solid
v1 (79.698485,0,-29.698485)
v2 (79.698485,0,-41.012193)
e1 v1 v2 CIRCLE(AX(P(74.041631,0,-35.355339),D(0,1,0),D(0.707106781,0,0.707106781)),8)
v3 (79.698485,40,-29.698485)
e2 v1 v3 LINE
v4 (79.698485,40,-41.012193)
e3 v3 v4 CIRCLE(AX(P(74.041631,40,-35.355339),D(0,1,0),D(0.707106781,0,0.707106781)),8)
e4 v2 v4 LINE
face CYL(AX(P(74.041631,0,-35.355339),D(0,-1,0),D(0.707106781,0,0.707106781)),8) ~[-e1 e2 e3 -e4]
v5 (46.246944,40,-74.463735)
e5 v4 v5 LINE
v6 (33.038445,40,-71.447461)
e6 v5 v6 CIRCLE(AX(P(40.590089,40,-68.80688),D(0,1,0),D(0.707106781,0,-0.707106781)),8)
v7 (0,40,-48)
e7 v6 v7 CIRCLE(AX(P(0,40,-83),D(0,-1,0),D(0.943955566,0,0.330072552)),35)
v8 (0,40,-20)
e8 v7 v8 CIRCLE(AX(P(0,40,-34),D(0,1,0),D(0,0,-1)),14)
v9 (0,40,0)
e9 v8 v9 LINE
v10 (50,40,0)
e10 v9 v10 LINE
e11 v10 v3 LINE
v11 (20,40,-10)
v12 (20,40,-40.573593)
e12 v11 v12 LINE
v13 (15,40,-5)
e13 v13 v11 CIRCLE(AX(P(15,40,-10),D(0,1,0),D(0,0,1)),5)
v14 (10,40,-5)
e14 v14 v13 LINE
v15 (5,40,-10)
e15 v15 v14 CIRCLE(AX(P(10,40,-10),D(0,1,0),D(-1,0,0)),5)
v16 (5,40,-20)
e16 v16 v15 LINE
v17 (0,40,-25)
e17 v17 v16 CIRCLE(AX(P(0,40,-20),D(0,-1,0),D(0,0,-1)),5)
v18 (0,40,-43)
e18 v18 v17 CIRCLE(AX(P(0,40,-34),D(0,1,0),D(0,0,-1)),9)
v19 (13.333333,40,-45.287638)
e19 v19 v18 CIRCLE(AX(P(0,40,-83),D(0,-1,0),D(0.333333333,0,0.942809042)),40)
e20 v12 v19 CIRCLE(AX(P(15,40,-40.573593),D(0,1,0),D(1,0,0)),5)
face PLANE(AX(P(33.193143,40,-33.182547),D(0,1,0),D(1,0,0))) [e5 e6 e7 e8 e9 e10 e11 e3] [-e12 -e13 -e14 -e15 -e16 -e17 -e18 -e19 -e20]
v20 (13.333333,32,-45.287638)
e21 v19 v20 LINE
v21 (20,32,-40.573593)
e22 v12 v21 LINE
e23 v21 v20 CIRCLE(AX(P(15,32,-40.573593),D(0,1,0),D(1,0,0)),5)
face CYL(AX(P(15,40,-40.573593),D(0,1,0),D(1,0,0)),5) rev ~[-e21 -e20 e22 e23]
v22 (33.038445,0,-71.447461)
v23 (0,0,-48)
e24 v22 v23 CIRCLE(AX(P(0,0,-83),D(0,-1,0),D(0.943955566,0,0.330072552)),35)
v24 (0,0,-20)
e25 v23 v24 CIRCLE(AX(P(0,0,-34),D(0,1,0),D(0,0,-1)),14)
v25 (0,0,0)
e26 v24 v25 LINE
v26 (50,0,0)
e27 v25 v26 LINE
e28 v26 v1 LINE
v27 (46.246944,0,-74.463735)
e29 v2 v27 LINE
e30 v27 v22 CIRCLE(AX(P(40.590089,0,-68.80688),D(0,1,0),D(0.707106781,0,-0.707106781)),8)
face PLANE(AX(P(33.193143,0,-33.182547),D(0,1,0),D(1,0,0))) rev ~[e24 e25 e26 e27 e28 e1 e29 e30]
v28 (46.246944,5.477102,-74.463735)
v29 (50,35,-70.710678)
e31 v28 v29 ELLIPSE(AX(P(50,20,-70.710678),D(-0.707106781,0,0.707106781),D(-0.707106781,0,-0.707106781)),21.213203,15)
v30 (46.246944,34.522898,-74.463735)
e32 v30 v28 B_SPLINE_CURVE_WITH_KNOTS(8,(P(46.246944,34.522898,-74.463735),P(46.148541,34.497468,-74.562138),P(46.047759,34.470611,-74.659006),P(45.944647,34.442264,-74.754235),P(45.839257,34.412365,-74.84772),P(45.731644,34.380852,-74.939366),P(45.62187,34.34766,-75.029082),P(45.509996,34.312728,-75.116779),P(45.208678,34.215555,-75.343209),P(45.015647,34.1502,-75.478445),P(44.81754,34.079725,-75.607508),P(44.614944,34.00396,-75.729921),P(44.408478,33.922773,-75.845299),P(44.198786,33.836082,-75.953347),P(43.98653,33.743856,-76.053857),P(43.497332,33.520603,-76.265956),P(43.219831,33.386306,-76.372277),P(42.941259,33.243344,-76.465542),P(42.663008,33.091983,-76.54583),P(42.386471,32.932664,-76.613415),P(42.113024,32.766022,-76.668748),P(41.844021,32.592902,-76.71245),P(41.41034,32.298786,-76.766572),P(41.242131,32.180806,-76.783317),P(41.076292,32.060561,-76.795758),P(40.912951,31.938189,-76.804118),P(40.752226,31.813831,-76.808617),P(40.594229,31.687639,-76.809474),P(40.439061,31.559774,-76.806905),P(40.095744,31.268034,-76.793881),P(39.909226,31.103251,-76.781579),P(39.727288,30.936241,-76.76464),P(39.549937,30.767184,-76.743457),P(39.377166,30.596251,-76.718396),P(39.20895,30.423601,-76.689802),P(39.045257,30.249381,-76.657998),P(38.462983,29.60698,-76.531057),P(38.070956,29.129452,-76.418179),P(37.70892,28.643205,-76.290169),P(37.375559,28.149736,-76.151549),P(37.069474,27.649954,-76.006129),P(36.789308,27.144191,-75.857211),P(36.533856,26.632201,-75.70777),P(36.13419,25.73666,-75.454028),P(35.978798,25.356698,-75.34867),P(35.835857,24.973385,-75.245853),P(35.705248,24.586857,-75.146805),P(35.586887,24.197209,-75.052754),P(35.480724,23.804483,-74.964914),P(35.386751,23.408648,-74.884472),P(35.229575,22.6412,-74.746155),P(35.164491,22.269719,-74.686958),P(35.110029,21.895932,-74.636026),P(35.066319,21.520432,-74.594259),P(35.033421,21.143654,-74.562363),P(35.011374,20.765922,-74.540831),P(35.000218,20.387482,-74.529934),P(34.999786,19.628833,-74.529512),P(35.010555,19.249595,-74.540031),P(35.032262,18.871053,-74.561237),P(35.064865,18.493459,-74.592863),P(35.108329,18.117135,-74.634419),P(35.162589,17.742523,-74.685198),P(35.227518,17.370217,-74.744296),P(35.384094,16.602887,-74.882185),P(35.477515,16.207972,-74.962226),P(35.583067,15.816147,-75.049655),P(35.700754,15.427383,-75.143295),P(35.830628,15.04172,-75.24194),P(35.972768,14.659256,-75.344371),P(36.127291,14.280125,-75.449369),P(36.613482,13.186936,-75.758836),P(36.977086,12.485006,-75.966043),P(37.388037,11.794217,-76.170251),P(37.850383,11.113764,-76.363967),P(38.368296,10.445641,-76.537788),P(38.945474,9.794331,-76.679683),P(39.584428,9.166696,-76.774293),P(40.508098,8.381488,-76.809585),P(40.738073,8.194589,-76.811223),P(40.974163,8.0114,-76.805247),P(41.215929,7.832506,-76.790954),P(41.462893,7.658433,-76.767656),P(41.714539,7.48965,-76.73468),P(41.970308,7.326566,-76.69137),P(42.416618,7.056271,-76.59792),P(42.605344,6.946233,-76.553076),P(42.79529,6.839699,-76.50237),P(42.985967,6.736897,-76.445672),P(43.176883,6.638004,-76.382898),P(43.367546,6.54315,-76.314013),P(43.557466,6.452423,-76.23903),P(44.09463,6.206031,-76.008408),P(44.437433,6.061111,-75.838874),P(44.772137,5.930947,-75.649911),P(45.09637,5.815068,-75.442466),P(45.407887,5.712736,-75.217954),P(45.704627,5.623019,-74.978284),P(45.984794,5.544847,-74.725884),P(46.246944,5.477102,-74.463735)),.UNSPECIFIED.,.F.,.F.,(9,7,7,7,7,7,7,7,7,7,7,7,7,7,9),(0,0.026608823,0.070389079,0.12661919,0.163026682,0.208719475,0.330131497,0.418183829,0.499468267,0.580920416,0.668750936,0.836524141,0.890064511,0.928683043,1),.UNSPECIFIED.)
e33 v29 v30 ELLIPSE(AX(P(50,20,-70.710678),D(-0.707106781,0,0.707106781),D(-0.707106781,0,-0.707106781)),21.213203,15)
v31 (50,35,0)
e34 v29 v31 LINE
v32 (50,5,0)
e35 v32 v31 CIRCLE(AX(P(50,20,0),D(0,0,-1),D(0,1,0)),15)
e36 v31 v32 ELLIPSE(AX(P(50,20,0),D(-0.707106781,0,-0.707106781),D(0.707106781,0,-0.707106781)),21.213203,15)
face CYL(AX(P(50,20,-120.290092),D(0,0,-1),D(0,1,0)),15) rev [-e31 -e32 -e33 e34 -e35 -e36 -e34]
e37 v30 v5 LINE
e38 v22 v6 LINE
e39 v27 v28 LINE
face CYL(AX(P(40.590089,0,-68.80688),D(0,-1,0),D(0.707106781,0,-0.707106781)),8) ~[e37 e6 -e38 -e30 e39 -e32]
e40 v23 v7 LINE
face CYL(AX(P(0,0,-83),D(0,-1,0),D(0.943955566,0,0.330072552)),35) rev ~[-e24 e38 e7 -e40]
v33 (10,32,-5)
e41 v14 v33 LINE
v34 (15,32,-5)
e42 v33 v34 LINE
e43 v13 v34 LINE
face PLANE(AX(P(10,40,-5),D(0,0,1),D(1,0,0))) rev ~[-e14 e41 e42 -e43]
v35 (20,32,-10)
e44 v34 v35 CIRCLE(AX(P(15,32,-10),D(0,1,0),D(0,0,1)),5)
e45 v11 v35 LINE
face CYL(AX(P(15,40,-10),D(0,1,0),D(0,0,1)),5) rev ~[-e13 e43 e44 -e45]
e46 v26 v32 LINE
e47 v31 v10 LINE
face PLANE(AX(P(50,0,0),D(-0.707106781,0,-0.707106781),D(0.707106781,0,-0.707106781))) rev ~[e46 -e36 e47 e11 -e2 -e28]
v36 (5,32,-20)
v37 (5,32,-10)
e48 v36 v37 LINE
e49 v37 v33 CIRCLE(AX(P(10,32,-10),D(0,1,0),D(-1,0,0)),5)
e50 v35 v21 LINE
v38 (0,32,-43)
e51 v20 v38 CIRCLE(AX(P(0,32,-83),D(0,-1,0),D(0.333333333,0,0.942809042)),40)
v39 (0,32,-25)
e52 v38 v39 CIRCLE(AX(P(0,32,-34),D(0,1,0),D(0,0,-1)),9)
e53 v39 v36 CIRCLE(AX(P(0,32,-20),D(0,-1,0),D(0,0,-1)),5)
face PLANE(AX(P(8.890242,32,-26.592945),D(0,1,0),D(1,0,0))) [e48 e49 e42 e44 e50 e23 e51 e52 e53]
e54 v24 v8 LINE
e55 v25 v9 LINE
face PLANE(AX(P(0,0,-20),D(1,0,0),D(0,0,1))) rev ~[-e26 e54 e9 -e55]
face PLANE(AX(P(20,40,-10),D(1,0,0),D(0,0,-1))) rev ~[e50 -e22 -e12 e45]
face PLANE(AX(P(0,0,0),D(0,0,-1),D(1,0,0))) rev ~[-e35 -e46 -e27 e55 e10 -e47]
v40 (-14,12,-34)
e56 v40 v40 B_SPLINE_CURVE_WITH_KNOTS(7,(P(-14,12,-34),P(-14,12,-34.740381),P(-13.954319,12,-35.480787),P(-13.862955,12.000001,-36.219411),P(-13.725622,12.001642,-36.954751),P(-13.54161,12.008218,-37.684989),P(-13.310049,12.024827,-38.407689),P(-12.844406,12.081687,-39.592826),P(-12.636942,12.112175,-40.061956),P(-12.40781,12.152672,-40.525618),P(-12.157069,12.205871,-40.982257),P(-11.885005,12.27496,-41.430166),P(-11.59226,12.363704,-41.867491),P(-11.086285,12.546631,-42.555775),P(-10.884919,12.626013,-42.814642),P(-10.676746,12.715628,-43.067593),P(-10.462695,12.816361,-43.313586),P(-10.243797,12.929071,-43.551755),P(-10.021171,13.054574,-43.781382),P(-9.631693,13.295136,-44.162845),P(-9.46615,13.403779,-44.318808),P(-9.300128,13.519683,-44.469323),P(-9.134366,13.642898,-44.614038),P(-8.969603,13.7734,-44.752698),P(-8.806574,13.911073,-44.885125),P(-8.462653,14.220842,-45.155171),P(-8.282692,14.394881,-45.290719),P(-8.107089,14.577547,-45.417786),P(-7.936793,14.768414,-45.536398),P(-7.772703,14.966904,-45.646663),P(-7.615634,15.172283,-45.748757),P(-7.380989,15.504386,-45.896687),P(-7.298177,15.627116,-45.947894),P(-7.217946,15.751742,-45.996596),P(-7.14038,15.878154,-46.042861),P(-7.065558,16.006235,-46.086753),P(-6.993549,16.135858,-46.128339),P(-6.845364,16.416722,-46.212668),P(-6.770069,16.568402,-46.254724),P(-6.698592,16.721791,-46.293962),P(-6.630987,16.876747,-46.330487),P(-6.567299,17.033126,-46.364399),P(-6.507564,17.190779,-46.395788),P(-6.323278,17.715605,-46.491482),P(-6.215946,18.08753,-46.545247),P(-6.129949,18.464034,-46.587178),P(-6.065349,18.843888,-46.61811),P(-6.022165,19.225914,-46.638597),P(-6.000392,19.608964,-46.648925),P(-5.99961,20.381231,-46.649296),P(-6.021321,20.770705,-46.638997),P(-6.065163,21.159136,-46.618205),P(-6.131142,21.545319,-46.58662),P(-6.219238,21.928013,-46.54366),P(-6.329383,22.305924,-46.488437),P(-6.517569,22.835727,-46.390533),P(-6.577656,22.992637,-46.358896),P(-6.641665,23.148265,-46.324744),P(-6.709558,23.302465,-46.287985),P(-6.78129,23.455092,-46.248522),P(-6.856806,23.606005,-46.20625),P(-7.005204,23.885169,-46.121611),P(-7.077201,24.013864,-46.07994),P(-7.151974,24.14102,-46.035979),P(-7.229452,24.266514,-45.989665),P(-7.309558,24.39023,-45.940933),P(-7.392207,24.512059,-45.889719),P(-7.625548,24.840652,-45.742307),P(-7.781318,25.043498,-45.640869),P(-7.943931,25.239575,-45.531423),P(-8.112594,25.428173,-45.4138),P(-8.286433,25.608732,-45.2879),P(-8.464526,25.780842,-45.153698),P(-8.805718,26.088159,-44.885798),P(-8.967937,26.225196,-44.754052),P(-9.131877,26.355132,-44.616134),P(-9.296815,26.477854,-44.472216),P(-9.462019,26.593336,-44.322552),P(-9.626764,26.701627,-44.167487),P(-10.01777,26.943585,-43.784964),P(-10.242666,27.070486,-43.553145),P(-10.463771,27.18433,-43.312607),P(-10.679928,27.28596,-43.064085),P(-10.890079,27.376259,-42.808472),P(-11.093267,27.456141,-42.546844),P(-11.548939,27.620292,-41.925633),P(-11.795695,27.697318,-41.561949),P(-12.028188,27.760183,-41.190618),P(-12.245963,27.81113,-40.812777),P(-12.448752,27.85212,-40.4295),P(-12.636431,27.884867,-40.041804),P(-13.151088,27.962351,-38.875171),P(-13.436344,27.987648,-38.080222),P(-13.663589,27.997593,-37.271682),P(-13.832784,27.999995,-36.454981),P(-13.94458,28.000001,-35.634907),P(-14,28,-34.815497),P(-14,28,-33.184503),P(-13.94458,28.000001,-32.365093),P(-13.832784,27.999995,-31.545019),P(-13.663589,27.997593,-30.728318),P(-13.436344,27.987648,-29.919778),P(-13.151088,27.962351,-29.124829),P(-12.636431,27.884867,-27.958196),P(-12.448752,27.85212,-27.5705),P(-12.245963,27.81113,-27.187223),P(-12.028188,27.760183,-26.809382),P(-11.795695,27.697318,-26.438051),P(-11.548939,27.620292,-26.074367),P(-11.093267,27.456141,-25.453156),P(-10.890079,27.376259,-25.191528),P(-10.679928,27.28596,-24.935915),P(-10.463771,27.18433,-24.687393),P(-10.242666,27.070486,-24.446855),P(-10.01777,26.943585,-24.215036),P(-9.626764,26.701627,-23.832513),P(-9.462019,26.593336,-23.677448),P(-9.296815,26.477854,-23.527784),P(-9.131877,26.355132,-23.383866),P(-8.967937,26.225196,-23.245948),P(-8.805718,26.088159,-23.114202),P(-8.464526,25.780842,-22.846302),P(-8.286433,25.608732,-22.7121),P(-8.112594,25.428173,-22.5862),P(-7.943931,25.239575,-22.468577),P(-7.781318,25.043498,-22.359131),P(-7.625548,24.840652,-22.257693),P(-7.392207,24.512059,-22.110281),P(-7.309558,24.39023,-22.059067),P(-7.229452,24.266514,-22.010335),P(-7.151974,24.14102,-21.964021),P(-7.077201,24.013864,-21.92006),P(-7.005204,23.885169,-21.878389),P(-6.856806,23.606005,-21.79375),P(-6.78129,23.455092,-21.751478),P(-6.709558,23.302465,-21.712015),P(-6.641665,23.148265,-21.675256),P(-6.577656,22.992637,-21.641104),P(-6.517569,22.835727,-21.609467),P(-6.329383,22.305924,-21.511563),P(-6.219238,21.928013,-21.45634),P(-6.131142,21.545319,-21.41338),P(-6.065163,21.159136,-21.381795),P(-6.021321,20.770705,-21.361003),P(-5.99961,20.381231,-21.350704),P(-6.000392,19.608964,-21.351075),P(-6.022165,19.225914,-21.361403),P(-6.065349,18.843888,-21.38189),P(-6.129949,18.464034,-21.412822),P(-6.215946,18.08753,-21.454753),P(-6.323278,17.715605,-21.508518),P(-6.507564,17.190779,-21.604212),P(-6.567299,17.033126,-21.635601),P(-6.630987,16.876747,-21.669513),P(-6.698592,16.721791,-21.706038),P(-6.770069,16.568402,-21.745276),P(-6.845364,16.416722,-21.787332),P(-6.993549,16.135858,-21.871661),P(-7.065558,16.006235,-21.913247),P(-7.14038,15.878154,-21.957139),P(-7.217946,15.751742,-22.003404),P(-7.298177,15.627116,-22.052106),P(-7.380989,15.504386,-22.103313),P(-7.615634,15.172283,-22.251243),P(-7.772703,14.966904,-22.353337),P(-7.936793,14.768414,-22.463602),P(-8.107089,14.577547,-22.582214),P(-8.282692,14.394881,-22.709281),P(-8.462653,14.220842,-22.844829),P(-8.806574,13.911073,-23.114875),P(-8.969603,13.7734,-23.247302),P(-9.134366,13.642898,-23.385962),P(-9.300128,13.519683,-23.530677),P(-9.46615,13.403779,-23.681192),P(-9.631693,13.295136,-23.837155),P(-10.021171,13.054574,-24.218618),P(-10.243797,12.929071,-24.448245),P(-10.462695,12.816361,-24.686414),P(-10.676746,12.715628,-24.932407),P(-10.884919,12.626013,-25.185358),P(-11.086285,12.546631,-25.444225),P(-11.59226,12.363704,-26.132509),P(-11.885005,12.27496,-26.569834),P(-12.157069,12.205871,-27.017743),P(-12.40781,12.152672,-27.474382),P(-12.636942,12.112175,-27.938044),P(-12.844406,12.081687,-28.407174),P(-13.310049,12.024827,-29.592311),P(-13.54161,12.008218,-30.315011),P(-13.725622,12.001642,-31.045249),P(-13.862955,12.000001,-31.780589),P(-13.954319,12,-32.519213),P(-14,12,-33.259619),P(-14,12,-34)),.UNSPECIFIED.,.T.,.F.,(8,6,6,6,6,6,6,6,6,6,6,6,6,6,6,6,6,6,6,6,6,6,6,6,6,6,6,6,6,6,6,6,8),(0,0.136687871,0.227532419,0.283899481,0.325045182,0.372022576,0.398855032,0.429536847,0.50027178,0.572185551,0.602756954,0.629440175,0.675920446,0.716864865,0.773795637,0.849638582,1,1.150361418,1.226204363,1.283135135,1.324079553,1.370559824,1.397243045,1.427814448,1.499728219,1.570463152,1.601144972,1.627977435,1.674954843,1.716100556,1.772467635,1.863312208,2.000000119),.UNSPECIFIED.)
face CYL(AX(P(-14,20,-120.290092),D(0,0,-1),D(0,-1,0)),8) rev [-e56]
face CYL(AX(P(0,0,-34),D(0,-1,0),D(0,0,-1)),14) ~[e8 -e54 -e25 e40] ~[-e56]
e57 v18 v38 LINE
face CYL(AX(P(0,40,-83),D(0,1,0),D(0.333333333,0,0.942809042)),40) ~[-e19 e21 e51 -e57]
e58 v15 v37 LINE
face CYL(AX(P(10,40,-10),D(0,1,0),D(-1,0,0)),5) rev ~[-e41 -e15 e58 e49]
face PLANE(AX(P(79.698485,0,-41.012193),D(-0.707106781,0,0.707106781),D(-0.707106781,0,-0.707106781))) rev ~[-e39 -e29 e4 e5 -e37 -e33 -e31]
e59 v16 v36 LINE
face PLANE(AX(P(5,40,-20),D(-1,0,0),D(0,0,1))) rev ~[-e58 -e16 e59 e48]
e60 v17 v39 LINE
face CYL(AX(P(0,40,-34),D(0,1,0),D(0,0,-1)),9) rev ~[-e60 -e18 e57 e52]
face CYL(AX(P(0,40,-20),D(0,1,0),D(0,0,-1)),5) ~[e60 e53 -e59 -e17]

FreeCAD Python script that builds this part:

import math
import FreeCAD as App
import Part
import Sketcher
from FreeCAD import Vector

doc = App.newDocument("Part")
body = doc.addObject("PartDesign::Body", "Body")

# Sketch on XZ plane
sketch1 = doc.addObject("Sketcher::SketchObject", "Sketch")
body.addObject(sketch1)
sketch1.AttachmentSupport = (doc.XZ_Plane, [""])
sketch1.MapMode = "FlatFace"
sketch1.addGeometry([
    Part.LineSegment(Vector(0, 0, 0), Vector(50, 0, 0)),  # 0
    Part.LineSegment(Vector(50, 0, 0), Vector(80, -30, 0)),  # 1
    Part.ArcOfCircle(Part.Circle(Vector(74, -35, 0), Vector(0, 0, 1), 8), math.radians(-45), math.radians(45)),  # 2
    Part.LineSegment(Vector(80, -41, 0), Vector(46, -74, 0)),  # 3
    Part.ArcOfCircle(Part.Circle(Vector(41, -69, 0), Vector(0, 0, 1), 8), math.radians(-161), math.radians(-45)),  # 4
    Part.ArcOfCircle(Part.Circle(Vector(0, -83, 0), Vector(0, 0, 1), 35), math.radians(19), math.radians(90)),  # 5
    Part.ArcOfCircle(Part.Circle(Vector(0, -34, 0), Vector(0, 0, 1), 14), math.radians(90), math.radians(270)),  # 6
    Part.LineSegment(Vector(0, -20, 0), Vector(0, 0, 0)),  # 7
], False)
sketch1.addConstraint([
    Sketcher.Constraint("Coincident", 0, 2, 1, 1),
    Sketcher.Constraint("Tangent", 1, 2, 2, 2),
    Sketcher.Constraint("Tangent", 2, 1, 3, 1),
    Sketcher.Constraint("Tangent", 3, 2, 4, 2),
    Sketcher.Constraint("Tangent", 4, 1, 5, 1),
    Sketcher.Constraint("Tangent", 5, 2, 6, 2),
    Sketcher.Constraint("Coincident", 6, 1, 7, 1),
    Sketcher.Constraint("Coincident", 7, 2, 0, 1),
    Sketcher.Constraint("Horizontal", 0),
    Sketcher.Constraint("Vertical", 7),
    Sketcher.Constraint("Coincident", 7, 2, -1, 1),
    Sketcher.Constraint("Equal", 2, 4),
    Sketcher.Constraint("PointOnObject", 5, 3, -2),
    Sketcher.Constraint("PointOnObject", 6, 3, -2),
    Sketcher.Constraint("Perpendicular", 1, 3),
    Sketcher.Constraint("Vertical", 1, 2, 2, 1),
    Sketcher.Constraint("Radius", 2, 8.0),
    Sketcher.Constraint("Radius", 5, 35.0),
    Sketcher.Constraint("Radius", 6, 14.0),
    Sketcher.Constraint("DistanceX", 0, 1, 0, 2, 50.0),
    Sketcher.Constraint("DistanceY", 7, 1, 7, 2, 20.0),
    Sketcher.Constraint("Distance", 1, 42.0),
])
pad1 = doc.addObject("PartDesign::Pad", "Pad")
body.addObject(pad1)
pad1.Profile = sketch1
pad1.Length = 40
pad1.Reversed = True

# Sketch on XZ plane
sketch2 = doc.addObject("Sketcher::SketchObject", "Sketch001")
body.addObject(sketch2)
sketch2.AttachmentSupport = (doc.XZ_Plane, [""])
sketch2.MapMode = "FlatFace"
sketch2.AttachmentOffset = App.Placement(Vector(0, 0, -40), App.Rotation())
sketch2.addGeometry([
    Part.LineSegment(Vector(20, -10, 0), Vector(20, -41, 0)),  # 0
    Part.ArcOfCircle(Part.Circle(Vector(15, -41, 0), Vector(0, 0, 1), 5), math.radians(-109), math.radians(0)),  # 1
    Part.ArcOfCircle(Part.Circle(Vector(0, -83, 0), Vector(0, 0, 1), 40), math.radians(70.53), math.radians(90)),  # 2
    Part.ArcOfCircle(Part.Circle(Vector(0, -34, 0), Vector(0, 0, 1), 9), math.radians(90), math.radians(270)),  # 3
    Part.ArcOfCircle(Part.Circle(Vector(0, -20, 0), Vector(0, 0, 1), 5), math.radians(-90), math.radians(0)),  # 4
    Part.LineSegment(Vector(5, -20, 0), Vector(5, -10, 0)),  # 5
    Part.ArcOfCircle(Part.Circle(Vector(10, -10, 0), Vector(0, 0, 1), 5), math.radians(90), math.radians(180)),  # 6
    Part.LineSegment(Vector(10, -5, 0), Vector(15, -5, 0)),  # 7
    Part.ArcOfCircle(Part.Circle(Vector(15, -10, 0), Vector(0, 0, 1), 5), math.radians(0), math.radians(90)),  # 8
], False)
sketch2.addConstraint([
    Sketcher.Constraint("Tangent", 0, 2, 1, 2),
    Sketcher.Constraint("Tangent", 1, 1, 2, 1),
    Sketcher.Constraint("Tangent", 2, 2, 3, 2),
    Sketcher.Constraint("Tangent", 3, 1, 4, 1),
    Sketcher.Constraint("Tangent", 4, 2, 5, 1),
    Sketcher.Constraint("Tangent", 5, 2, 6, 2),
    Sketcher.Constraint("Tangent", 6, 1, 7, 1),
    Sketcher.Constraint("Tangent", 7, 2, 8, 2),
    Sketcher.Constraint("Tangent", 8, 1, 0, 1),
    Sketcher.Constraint("Vertical", 0),
    Sketcher.Constraint("Vertical", 5),
    Sketcher.Constraint("Horizontal", 7),
    Sketcher.Constraint("Equal", 1, 4),
    Sketcher.Constraint("Equal", 4, 6),
    Sketcher.Constraint("Equal", 6, 8),
    Sketcher.Constraint("PointOnObject", 2, 3, -2),
    Sketcher.Constraint("PointOnObject", 3, 3, -2),
    Sketcher.Constraint("PointOnObject", 4, 3, -2),
    Sketcher.Constraint("Radius", 1, 5.0),
    Sketcher.Constraint("Radius", 2, 40.0),
    Sketcher.Constraint("Radius", 3, 9.0),
    Sketcher.Constraint("DistanceX", 7, 1, 7, 2, 5.0),
    Sketcher.Constraint("DistanceY", 5, 1, 5, 2, 10.0),
    Sketcher.Constraint("DistanceY", 2, 3, -1, 1, 83.0),
])
pocket1 = doc.addObject("PartDesign::Pocket", "Pocket")
body.addObject(pocket1)
pocket1.Profile = sketch2
pocket1.Length = 8
pocket1.Reversed = True

# Sketch on XY plane
sketch3 = doc.addObject("Sketcher::SketchObject", "Sketch002")
body.addObject(sketch3)
sketch3.AttachmentSupport = (doc.XY_Plane, [""])
sketch3.MapMode = "FlatFace"
sketch3.addGeometry([
    Part.Circle(Vector(50, 20, 0), Vector(0, 0, 1), 15),
    Part.LineSegment(Vector(-14, 28, 0), Vector(-14, 12, 0)),
    Part.ArcOfCircle(Part.Circle(Vector(-14, 20, 0), Vector(0, 0, 1), 8), math.radians(-90), math.radians(90)),
], False)
sketch3.addConstraint([
    Sketcher.Constraint("Coincident", 1, 1, 2, 2),
    Sketcher.Constraint("Coincident", 2, 1, 1, 2),
    Sketcher.Constraint("Vertical", 1),
    Sketcher.Constraint("Horizontal", 0, 3, 2, 3),
    Sketcher.Constraint("Vertical", 2, 3, 1, 1),
    Sketcher.Constraint("Diameter", 0, 30.0),
    Sketcher.Constraint("Radius", 2, 8.0),
    Sketcher.Constraint("DistanceX", -1, 1, 0, 3, 50.0),
    Sketcher.Constraint("DistanceY", -1, 1, 0, 3, 20.0),
    Sketcher.Constraint("DistanceX", 2, 3, -1, 1, 14.0),
])
pocket2 = doc.addObject("PartDesign::Pocket", "Pocket001")
body.addObject(pocket2)
pocket2.Profile = sketch3
pocket2.Type = "ThroughAll"
pocket2.Midplane = True

doc.recompute()
